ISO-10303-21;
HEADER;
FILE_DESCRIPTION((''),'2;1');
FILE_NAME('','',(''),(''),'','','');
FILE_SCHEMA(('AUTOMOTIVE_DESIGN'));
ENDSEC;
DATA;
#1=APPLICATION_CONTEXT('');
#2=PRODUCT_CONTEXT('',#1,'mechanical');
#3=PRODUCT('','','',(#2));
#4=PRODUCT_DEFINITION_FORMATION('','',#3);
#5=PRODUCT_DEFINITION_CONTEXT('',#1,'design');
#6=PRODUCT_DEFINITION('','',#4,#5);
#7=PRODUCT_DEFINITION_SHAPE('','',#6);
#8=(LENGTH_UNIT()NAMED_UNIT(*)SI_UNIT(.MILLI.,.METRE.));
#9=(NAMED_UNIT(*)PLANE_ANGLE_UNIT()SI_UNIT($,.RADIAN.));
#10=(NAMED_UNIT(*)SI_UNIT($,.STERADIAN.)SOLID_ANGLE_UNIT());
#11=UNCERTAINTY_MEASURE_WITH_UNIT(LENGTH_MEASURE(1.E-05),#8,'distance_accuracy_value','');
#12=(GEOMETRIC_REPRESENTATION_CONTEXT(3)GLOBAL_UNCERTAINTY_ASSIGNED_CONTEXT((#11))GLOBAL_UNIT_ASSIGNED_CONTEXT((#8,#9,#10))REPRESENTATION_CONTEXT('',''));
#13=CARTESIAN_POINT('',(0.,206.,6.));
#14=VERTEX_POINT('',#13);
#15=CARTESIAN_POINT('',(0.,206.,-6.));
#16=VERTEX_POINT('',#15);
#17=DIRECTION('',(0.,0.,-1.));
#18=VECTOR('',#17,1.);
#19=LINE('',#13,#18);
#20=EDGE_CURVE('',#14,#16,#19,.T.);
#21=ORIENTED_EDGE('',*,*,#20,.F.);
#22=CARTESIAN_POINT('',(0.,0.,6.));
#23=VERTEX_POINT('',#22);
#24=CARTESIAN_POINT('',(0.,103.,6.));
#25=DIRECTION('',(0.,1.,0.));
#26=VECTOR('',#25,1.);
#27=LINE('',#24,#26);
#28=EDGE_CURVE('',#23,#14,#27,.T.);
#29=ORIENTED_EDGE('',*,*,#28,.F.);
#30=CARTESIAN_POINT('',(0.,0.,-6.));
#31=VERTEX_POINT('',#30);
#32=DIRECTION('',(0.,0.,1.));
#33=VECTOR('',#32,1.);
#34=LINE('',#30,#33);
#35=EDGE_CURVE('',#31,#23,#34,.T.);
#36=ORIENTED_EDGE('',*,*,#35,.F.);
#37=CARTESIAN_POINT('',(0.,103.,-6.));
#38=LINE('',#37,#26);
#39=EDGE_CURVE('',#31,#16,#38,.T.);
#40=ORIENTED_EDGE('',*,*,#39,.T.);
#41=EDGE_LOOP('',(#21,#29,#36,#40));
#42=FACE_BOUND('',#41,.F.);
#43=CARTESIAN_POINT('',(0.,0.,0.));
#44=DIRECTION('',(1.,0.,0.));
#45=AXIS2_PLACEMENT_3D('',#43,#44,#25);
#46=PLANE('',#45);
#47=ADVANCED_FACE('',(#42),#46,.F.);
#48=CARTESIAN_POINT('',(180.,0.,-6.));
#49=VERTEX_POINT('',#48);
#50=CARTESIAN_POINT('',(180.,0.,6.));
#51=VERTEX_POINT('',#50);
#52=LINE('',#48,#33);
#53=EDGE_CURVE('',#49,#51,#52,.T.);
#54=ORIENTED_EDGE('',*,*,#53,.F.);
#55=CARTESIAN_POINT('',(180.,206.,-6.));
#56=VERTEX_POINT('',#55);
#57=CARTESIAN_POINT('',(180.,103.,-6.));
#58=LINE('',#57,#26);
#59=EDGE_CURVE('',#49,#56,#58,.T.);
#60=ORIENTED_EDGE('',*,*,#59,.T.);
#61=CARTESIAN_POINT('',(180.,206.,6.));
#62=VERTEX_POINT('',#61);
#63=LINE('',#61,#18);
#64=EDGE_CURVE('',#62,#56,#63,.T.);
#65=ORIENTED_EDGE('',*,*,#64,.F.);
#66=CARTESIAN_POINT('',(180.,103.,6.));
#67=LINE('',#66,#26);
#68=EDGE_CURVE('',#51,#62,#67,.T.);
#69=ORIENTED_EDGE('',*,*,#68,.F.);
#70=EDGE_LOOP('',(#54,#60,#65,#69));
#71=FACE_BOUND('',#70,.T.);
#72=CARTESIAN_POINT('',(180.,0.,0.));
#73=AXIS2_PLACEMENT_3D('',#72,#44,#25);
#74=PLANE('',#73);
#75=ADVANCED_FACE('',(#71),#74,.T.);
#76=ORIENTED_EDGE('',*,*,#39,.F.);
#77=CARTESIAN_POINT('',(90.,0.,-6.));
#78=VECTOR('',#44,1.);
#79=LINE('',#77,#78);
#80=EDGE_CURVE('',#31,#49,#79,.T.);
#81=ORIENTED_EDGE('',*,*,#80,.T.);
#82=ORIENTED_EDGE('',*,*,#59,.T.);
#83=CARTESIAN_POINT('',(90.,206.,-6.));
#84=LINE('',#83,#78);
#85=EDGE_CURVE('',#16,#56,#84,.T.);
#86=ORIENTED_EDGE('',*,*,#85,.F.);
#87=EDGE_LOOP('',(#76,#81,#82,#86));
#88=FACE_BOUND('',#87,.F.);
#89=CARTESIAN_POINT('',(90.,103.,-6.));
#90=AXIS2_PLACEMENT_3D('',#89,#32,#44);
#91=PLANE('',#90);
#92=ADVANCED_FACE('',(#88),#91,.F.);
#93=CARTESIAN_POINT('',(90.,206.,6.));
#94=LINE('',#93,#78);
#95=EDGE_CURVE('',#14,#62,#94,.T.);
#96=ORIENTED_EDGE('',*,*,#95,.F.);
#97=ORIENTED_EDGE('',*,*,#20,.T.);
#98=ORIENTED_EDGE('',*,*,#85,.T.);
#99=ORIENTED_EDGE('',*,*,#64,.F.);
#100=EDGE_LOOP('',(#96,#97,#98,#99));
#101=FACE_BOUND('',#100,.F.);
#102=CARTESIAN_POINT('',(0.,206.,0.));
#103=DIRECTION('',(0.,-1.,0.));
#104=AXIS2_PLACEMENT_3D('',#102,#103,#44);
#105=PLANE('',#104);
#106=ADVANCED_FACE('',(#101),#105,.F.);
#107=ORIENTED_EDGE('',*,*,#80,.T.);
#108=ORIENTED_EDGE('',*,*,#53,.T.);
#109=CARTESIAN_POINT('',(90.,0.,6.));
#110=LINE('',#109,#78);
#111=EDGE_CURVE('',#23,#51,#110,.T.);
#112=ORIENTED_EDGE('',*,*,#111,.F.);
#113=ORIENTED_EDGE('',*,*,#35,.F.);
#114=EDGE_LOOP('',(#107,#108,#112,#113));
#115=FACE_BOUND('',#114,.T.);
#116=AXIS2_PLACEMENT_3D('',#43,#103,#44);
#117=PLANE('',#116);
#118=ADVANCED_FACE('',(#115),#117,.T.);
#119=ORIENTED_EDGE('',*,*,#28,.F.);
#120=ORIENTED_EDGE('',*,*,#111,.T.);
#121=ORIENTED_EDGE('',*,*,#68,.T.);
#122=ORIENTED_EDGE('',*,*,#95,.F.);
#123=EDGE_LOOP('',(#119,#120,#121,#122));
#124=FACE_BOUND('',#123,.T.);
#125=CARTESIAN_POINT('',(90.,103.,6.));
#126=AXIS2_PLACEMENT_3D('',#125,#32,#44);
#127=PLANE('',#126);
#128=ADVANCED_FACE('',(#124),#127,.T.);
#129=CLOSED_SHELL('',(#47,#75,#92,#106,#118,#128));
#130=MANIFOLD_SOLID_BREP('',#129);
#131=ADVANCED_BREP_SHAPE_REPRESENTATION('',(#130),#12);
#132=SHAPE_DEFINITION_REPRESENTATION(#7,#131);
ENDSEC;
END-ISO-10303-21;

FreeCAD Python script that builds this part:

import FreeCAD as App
import Part
import Sketcher

V = App.Vector
Q = App.Units.Quantity

doc = App.newDocument("Part")
body = doc.addObject("PartDesign::Body", "Body")

# Sketch on XY plane
sketch1 = body.newObject("Sketcher::SketchObject", "Sketch")
sketch1.AttachmentSupport = (doc.getObject("XY_Plane"), [""])
sketch1.MapMode = "FlatFace"
sketch1.addGeometry([
    Part.LineSegment(V(0, 206, 0), V(0, 0, 0)),
    Part.LineSegment(V(0, 0, 0), V(180, 0, 0)),
    Part.LineSegment(V(180, 0, 0), V(180, 206, 0)),
    Part.LineSegment(V(180, 206, 0), V(0, 206, 0)),
], False)
sketch1.addConstraint([
    Sketcher.Constraint("Coincident", 0, 2, 1, 1),
    Sketcher.Constraint("Coincident", 1, 2, 2, 1),
    Sketcher.Constraint("Coincident", 2, 2, 3, 1),
    Sketcher.Constraint("Coincident", 3, 2, 0, 1),
    Sketcher.Constraint("Vertical", 0),
    Sketcher.Constraint("Horizontal", 1),
    Sketcher.Constraint("Vertical", 2),
    Sketcher.Constraint("Horizontal", 3),
    Sketcher.Constraint("Coincident", 0, 2, -1, 1),
    Sketcher.Constraint("DistanceX", 1, 1, 1, 2, Q("180 mm")),
    Sketcher.Constraint("DistanceY", 0, 2, 0, 1, Q("206 mm")),
])
pad1 = body.newObject("PartDesign::Pad", "Pad")
pad1.Profile = sketch1
pad1.Length = 12
pad1.Midplane = True

# Sketch on XY plane
sketch2 = body.newObject("Sketcher::SketchObject", "Sketch001")
sketch2.AttachmentSupport = (doc.getObject("XY_Plane"), [""])
sketch2.MapMode = "FlatFace"
sketch2.addGeometry([
    Part.LineSegment(V(0, 206, 0), V(0, 0, 0)),
    Part.LineSegment(V(0, 0, 0), V(180, 0, 0)),
    Part.LineSegment(V(180, 0, 0), V(180, 206, 0)),
    Part.LineSegment(V(180, 206, 0), V(0, 206, 0)),
], False)
sketch2.addConstraint([
    Sketcher.Constraint("Coincident", 0, 2, 1, 1),
    Sketcher.Constraint("Coincident", 1, 2, 2, 1),
    Sketcher.Constraint("Coincident", 2, 2, 3, 1),
    Sketcher.Constraint("Coincident", 3, 2, 0, 1),
    Sketcher.Constraint("Vertical", 0),
    Sketcher.Constraint("Horizontal", 1),
    Sketcher.Constraint("Vertical", 2),
    Sketcher.Constraint("Horizontal", 3),
    Sketcher.Constraint("Coincident", 0, 2, -1, 1),
    Sketcher.Constraint("DistanceX", 1, 1, 1, 2, Q("180 mm")),
    Sketcher.Constraint("DistanceY", 0, 2, 0, 1, Q("206 mm")),
])
pad2 = body.newObject("PartDesign::Pad", "Pad001")
pad2.Profile = sketch2
pad2.Length = 12
pad2.Midplane = True

doc.recompute()
